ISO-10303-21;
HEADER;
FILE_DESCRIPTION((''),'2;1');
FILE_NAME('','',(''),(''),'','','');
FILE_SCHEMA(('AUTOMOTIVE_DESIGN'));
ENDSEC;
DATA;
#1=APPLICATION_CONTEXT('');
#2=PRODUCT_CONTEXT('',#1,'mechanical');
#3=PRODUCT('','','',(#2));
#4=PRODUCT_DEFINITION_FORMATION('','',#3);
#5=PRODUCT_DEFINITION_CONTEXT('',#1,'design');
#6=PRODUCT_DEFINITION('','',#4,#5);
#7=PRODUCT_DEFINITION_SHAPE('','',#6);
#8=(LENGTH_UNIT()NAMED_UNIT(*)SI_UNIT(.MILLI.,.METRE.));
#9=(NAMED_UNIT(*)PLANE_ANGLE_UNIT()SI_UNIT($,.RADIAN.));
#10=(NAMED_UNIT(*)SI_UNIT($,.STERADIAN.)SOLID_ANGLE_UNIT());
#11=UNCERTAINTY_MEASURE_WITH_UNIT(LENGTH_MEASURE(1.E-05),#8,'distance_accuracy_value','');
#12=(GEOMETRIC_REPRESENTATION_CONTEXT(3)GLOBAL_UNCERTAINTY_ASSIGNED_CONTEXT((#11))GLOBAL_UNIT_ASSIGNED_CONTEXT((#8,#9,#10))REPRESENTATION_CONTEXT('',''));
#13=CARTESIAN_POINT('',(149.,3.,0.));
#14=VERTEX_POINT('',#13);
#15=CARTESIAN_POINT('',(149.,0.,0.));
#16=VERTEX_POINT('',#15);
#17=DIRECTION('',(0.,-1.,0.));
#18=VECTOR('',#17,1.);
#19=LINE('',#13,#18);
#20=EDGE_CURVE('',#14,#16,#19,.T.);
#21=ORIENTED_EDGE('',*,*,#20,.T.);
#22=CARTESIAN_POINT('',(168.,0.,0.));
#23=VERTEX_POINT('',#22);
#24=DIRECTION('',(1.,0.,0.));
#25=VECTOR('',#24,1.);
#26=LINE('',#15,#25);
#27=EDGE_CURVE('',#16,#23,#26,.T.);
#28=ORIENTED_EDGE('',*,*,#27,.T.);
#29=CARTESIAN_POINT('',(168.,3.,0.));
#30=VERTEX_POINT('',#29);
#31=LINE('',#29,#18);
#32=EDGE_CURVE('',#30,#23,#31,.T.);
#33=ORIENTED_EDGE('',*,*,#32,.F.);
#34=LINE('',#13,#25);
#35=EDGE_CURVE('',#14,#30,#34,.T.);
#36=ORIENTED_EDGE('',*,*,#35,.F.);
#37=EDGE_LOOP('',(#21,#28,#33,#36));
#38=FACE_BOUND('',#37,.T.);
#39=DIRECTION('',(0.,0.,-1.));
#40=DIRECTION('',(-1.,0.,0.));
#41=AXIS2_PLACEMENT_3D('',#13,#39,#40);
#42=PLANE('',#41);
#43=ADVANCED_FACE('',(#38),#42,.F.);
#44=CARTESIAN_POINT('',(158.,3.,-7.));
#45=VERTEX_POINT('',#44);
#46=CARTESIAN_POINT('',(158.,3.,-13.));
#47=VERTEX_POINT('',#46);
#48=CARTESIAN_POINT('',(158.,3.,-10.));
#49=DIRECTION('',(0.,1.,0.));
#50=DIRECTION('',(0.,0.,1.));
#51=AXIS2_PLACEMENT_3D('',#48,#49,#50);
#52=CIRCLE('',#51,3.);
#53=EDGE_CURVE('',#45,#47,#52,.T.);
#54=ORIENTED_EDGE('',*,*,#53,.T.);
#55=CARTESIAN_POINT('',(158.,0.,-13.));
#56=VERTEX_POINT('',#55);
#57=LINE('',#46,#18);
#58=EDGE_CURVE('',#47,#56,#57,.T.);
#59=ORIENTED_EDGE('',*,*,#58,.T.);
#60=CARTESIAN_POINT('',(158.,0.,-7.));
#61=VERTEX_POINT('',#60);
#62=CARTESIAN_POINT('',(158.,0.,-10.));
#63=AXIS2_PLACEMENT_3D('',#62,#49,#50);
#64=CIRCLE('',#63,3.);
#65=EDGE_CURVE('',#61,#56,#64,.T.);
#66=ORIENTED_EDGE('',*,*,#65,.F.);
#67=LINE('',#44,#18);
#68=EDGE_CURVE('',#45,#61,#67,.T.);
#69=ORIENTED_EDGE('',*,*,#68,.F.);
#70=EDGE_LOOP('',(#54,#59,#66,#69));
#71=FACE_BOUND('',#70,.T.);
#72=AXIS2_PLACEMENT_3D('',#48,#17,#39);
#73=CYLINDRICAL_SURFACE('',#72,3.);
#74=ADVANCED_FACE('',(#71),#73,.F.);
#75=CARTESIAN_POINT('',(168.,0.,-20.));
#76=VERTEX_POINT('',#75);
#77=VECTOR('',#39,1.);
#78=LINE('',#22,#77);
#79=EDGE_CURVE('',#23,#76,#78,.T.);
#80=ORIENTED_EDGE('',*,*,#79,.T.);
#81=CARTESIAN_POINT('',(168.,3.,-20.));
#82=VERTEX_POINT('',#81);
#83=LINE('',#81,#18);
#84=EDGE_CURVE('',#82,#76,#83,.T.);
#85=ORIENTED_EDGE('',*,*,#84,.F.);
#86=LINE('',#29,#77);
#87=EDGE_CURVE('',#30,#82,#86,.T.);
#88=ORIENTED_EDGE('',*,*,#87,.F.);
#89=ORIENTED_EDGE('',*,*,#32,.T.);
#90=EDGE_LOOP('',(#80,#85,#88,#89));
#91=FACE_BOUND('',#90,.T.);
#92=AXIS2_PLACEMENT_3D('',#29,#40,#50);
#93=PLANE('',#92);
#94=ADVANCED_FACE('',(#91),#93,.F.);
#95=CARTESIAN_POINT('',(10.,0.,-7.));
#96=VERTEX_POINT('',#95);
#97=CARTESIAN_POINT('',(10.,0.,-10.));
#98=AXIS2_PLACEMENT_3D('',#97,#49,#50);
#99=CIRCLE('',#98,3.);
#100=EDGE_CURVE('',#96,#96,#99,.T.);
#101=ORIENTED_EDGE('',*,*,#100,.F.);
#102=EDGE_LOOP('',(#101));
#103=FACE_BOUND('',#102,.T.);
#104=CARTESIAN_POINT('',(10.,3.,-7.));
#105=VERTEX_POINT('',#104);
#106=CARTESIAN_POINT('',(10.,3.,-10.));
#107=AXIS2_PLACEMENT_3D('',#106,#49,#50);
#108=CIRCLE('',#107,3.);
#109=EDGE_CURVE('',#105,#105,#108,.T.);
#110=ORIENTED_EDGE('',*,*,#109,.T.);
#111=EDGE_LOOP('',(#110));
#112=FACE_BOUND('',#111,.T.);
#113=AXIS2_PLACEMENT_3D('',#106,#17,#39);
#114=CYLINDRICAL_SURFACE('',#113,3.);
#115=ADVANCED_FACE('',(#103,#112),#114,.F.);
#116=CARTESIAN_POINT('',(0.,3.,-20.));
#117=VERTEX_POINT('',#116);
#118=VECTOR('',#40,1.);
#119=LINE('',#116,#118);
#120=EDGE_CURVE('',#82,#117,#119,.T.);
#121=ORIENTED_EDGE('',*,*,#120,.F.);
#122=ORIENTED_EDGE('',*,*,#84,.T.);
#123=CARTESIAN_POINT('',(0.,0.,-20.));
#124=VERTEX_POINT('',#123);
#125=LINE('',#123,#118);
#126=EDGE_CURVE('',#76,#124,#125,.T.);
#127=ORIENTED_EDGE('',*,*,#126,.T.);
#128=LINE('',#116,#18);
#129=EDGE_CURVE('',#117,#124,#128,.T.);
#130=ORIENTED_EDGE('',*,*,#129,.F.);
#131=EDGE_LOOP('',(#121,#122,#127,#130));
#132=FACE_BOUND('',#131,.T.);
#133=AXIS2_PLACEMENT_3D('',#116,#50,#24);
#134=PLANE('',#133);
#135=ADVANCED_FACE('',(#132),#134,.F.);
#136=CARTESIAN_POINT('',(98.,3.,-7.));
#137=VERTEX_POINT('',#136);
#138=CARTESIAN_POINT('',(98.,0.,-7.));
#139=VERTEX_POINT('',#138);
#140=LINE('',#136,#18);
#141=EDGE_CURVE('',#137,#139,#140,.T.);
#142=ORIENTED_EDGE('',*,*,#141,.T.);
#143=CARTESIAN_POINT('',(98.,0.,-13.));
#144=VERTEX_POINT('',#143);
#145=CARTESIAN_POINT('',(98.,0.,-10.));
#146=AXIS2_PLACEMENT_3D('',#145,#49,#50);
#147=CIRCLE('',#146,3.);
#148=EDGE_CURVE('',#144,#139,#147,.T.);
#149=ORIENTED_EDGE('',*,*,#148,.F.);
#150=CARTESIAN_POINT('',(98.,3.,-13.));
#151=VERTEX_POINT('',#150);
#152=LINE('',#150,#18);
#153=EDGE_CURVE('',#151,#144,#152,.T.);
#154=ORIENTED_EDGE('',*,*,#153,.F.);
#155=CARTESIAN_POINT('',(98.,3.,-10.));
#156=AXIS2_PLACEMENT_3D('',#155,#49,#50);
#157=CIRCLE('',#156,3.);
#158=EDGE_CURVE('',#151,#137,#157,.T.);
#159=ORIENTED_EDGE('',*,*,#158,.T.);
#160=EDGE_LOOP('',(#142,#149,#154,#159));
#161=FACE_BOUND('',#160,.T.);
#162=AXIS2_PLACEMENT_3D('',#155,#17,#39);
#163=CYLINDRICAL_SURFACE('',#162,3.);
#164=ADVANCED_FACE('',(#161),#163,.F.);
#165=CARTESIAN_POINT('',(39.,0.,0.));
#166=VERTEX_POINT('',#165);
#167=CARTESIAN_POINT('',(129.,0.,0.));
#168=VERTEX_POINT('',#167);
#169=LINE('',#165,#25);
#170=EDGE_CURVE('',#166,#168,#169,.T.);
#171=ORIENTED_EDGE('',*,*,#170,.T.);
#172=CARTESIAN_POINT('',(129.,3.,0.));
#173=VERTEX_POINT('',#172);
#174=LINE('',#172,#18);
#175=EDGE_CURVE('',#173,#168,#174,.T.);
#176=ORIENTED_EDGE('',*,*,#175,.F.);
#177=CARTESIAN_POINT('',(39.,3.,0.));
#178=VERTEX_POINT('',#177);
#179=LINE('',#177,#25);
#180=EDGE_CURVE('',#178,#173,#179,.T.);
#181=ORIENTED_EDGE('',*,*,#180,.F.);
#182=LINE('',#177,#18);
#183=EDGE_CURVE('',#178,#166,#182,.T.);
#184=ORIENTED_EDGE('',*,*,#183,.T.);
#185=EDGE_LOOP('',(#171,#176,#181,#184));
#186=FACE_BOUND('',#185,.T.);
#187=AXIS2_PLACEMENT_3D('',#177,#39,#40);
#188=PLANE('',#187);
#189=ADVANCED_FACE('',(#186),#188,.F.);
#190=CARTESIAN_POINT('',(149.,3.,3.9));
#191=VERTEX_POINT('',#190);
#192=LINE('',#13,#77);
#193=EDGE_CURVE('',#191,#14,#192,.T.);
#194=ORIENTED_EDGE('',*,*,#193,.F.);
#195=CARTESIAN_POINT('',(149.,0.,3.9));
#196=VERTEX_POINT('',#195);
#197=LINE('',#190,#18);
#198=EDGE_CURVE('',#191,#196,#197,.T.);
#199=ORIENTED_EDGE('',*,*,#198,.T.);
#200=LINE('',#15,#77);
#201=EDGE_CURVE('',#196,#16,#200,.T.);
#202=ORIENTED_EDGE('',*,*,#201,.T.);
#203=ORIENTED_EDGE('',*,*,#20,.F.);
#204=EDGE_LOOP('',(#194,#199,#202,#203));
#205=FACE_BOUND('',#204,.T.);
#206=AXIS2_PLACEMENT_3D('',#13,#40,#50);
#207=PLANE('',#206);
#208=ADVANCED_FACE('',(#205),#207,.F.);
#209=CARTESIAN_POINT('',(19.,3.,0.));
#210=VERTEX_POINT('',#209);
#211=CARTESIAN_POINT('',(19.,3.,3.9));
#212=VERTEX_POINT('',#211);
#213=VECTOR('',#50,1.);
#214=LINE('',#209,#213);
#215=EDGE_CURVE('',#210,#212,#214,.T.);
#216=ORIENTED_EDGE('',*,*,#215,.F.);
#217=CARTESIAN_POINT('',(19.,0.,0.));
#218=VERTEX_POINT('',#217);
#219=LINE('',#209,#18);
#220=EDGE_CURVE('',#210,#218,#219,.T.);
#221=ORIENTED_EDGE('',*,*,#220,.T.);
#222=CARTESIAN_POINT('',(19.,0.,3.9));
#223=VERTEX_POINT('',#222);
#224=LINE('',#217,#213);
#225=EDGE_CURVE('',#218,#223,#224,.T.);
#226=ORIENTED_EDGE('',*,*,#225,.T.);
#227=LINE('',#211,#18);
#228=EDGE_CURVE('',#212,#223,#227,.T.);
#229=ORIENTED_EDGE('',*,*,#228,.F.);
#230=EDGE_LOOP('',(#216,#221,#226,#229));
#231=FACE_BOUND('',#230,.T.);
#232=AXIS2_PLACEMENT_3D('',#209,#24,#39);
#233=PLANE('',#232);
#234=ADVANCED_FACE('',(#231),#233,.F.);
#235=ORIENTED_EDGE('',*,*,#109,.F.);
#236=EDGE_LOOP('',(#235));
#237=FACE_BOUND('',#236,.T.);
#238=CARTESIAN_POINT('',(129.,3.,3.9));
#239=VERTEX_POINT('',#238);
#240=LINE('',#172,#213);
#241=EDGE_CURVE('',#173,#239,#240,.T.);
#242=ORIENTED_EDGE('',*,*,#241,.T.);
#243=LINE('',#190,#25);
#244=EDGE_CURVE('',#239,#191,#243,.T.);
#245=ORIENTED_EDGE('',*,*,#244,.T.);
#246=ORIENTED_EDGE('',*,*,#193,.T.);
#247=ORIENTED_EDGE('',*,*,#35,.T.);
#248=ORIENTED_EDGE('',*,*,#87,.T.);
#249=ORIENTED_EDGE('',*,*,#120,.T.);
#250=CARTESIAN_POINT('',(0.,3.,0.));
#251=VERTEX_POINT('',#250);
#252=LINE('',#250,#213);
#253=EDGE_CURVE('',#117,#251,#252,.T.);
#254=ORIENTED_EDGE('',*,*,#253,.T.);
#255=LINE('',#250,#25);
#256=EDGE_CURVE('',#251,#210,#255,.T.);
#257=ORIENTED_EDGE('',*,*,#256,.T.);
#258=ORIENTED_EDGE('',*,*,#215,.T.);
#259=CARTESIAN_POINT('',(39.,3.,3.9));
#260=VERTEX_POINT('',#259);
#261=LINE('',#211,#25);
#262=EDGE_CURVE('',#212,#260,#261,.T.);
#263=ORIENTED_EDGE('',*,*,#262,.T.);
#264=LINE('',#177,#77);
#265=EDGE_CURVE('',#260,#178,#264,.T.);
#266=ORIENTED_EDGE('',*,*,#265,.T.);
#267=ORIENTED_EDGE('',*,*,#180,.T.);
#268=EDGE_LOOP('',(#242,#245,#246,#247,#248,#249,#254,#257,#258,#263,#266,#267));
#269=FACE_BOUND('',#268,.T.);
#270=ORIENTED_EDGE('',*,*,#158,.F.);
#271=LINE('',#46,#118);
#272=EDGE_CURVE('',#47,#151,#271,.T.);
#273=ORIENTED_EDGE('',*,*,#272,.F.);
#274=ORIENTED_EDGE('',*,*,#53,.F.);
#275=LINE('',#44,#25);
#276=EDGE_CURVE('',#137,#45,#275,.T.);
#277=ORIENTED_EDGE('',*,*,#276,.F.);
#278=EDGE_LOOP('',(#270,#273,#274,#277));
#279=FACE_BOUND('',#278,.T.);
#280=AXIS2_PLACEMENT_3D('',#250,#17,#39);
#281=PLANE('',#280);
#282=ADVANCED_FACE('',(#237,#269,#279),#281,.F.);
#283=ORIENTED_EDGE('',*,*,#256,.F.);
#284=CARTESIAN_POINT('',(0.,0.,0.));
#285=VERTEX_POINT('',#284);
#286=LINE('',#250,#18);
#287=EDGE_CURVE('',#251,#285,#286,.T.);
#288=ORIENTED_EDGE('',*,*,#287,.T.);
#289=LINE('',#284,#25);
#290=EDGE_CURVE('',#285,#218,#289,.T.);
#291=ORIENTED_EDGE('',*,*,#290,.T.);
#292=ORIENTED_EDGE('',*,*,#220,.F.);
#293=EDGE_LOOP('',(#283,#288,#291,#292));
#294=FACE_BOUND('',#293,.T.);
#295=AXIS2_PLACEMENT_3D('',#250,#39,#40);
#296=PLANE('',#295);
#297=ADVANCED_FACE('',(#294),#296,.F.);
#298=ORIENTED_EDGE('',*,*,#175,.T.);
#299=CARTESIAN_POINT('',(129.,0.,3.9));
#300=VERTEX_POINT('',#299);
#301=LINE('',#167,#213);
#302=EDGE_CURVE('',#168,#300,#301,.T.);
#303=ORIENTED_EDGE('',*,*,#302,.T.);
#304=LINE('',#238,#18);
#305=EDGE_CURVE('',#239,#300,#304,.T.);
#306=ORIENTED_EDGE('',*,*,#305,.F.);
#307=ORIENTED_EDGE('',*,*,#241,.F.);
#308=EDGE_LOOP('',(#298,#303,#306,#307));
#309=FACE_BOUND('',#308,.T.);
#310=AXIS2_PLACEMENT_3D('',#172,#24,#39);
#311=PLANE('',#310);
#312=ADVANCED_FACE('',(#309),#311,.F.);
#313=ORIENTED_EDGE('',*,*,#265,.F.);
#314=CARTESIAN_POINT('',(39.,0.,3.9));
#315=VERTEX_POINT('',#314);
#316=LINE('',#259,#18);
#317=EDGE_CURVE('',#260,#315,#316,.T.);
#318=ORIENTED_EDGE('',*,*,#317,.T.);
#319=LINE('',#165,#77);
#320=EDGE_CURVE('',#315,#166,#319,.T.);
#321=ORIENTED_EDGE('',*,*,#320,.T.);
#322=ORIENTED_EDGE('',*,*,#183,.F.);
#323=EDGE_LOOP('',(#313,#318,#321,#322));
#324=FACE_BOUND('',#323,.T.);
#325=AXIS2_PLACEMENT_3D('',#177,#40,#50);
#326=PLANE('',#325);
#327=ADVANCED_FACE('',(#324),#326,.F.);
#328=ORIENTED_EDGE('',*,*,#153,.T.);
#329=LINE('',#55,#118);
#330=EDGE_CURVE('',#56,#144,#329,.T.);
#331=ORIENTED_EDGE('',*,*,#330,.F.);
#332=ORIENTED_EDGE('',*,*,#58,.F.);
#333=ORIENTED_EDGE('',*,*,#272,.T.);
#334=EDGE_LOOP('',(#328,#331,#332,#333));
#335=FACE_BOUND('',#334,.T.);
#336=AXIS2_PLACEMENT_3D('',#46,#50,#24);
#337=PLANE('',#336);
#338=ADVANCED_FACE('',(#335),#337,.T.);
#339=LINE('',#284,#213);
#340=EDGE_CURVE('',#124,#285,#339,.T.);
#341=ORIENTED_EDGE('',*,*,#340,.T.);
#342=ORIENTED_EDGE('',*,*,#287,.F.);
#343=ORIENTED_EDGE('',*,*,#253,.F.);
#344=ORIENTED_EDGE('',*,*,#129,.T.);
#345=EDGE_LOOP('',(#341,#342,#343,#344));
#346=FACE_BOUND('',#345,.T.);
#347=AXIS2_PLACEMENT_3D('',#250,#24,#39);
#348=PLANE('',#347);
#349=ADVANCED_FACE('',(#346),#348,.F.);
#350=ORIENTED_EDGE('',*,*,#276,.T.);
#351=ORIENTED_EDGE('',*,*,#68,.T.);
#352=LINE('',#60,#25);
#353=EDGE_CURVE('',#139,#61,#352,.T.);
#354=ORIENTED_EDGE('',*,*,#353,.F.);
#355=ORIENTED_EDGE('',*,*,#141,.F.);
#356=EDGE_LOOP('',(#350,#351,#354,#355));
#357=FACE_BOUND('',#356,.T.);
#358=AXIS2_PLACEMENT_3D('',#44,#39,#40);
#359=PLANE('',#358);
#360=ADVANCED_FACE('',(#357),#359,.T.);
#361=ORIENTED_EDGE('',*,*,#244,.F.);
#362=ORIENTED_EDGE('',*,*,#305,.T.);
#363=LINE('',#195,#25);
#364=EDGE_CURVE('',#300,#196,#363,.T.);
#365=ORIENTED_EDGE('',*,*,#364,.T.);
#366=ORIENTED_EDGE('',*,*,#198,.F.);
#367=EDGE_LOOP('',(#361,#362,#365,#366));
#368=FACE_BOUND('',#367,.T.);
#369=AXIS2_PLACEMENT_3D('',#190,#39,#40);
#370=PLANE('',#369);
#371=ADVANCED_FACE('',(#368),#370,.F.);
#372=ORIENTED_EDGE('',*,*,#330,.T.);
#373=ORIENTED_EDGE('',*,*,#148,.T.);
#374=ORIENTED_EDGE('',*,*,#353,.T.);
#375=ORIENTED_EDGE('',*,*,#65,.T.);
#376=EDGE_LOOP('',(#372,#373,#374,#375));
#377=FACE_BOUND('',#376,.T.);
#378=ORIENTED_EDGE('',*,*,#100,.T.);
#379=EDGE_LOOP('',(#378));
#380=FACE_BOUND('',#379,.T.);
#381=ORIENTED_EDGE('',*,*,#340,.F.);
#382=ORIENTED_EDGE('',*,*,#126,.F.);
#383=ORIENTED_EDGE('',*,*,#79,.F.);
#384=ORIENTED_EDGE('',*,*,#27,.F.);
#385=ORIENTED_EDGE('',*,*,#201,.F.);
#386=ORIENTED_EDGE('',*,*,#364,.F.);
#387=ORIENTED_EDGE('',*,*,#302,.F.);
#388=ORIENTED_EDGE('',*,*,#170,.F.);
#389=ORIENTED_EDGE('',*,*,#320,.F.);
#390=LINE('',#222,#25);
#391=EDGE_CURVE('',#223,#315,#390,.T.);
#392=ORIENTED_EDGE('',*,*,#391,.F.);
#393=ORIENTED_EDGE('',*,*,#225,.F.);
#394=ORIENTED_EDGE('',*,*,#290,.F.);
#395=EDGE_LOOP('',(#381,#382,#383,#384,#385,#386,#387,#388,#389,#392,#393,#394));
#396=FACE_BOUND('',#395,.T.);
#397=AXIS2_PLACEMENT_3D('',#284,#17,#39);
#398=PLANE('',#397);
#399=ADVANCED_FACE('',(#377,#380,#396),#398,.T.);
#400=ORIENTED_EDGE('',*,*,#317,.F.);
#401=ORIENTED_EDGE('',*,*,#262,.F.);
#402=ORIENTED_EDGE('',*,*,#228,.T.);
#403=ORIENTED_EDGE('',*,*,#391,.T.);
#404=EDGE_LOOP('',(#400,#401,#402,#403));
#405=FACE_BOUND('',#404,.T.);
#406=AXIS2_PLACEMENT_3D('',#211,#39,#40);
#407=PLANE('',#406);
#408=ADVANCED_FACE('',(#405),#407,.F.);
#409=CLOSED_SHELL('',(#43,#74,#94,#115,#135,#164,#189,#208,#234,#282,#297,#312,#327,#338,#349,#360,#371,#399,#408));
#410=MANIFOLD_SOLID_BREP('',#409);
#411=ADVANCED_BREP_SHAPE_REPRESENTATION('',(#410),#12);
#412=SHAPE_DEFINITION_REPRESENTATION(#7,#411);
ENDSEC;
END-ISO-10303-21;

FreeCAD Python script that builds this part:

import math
import FreeCAD as App
import Part
import Sketcher

V = App.Vector

doc = App.newDocument("Part")
body = doc.addObject("PartDesign::Body", "Body")

sketch1 = doc.addObject("Sketcher::SketchObject", "Sketch")
body.addObject(sketch1)
sketch1.AttachmentSupport = (doc.XZ_Plane, [""])
sketch1.MapMode = "FlatFace"
sketch1.addGeometry([
    Part.LineSegment(V(0, 0, 0), V(19, 0, 0)),
    Part.LineSegment(V(19, 0, 0), V(19, 3.9, 0)),
    Part.LineSegment(V(19, 3.9, 0), V(39, 3.9, 0)),
    Part.LineSegment(V(39, 3.9, 0), V(39, 0, 0)),
    Part.LineSegment(V(39, 0, 0), V(129, 0, 0)),
    Part.LineSegment(V(129, 0, 0), V(129, 3.9, 0)),
    Part.LineSegment(V(129, 3.9, 0), V(149, 3.9, 0)),
    Part.LineSegment(V(149, 3.9, 0), V(149, 0, 0)),
    Part.LineSegment(V(149, 0, 0), V(168, 0, 0)),
    Part.LineSegment(V(168, 0, 0), V(168, -20, 0)),
    Part.LineSegment(V(168, -20, 0), V(0, -20, 0)),
    Part.LineSegment(V(0, -20, 0), V(0, 0, 0)),
    Part.Circle(V(10, -10, 0), V(0, 0, 1), 3),
    Part.ArcOfCircle(Part.Circle(V(158, -10, 0), V(0, 0, 1), 3), math.radians(-90), math.radians(90)),
    Part.LineSegment(V(158, -7, 0), V(98, -7, 0)),
    Part.ArcOfCircle(Part.Circle(V(98, -10, 0), V(0, 0, 1), 3), math.radians(90), math.radians(270)),
    Part.LineSegment(V(98, -13, 0), V(158, -13, 0)),
], False)
sketch1.addConstraint([
    Sketcher.Constraint("Coincident", 0, 2, 1, 1),
    Sketcher.Constraint("Coincident", 1, 2, 2, 1),
    Sketcher.Constraint("Coincident", 2, 2, 3, 1),
    Sketcher.Constraint("Coincident", 3, 2, 4, 1),
    Sketcher.Constraint("Coincident", 4, 2, 5, 1),
    Sketcher.Constraint("Coincident", 5, 2, 6, 1),
    Sketcher.Constraint("Coincident", 6, 2, 7, 1),
    Sketcher.Constraint("Coincident", 7, 2, 8, 1),
    Sketcher.Constraint("Coincident", 8, 2, 9, 1),
    Sketcher.Constraint("Coincident", 9, 2, 10, 1),
    Sketcher.Constraint("Coincident", 10, 2, 11, 1),
    Sketcher.Constraint("Coincident", 11, 2, 0, 1),
    Sketcher.Constraint("Tangent", 13, 2, 14, 1),
    Sketcher.Constraint("Tangent", 14, 2, 15, 1),
    Sketcher.Constraint("Tangent", 15, 2, 16, 1),
    Sketcher.Constraint("Tangent", 16, 2, 13, 1),
    Sketcher.Constraint("Horizontal", 0),
    Sketcher.Constraint("Vertical", 1),
    Sketcher.Constraint("Horizontal", 2),
    Sketcher.Constraint("Vertical", 3),
    Sketcher.Constraint("Horizontal", 4),
    Sketcher.Constraint("Vertical", 5),
    Sketcher.Constraint("Horizontal", 6),
    Sketcher.Constraint("Vertical", 7),
    Sketcher.Constraint("Horizontal", 8),
    Sketcher.Constraint("Vertical", 9),
    Sketcher.Constraint("Horizontal", 10),
    Sketcher.Constraint("Vertical", 11),
    Sketcher.Constraint("Horizontal", 14),
    Sketcher.Constraint("Horizontal", 16),
    Sketcher.Constraint("Coincident", 11, 2, -1, 1),
    Sketcher.Constraint("Equal", 12, 13),
    Sketcher.Constraint("PointOnObject", 3, 2, -1),
    Sketcher.Constraint("PointOnObject", 7, 2, -1),
    Sketcher.Constraint("Horizontal", 12, 3, 13, 3),
    Sketcher.Constraint("Horizontal", 2, 2, 5, 2),
    Sketcher.Constraint("Equal", 2, 6),
    Sketcher.Constraint("Equal", 0, 8),
    Sketcher.Constraint("Equal", 6, 9),
    Sketcher.Constraint("Diameter", 12, 6.0),
    Sketcher.Constraint("DistanceX", 0, 1, 0, 2, 19.0),
    Sketcher.Constraint("DistanceX", 2, 1, 2, 2, 20.0),
    Sketcher.Constraint("DistanceX", 4, 1, 4, 2, 90.0),
    Sketcher.Constraint("DistanceX", 14, 2, 14, 1, 60.0),
    Sketcher.Constraint("DistanceY", 1, 1, 1, 2, 3.9),
    Sketcher.Constraint("DistanceX", -1, 1, 12, 3, 10.0),
    Sketcher.Constraint("DistanceY", 12, 3, -1, 1, 10.0),
    Sketcher.Constraint("DistanceX", -1, 1, 13, 3, 158.0),
])
pad1 = doc.addObject("PartDesign::Pad", "Pad")
body.addObject(pad1)
pad1.Profile = sketch1
pad1.Length = 3
pad1.Reversed = True

doc.recompute()
